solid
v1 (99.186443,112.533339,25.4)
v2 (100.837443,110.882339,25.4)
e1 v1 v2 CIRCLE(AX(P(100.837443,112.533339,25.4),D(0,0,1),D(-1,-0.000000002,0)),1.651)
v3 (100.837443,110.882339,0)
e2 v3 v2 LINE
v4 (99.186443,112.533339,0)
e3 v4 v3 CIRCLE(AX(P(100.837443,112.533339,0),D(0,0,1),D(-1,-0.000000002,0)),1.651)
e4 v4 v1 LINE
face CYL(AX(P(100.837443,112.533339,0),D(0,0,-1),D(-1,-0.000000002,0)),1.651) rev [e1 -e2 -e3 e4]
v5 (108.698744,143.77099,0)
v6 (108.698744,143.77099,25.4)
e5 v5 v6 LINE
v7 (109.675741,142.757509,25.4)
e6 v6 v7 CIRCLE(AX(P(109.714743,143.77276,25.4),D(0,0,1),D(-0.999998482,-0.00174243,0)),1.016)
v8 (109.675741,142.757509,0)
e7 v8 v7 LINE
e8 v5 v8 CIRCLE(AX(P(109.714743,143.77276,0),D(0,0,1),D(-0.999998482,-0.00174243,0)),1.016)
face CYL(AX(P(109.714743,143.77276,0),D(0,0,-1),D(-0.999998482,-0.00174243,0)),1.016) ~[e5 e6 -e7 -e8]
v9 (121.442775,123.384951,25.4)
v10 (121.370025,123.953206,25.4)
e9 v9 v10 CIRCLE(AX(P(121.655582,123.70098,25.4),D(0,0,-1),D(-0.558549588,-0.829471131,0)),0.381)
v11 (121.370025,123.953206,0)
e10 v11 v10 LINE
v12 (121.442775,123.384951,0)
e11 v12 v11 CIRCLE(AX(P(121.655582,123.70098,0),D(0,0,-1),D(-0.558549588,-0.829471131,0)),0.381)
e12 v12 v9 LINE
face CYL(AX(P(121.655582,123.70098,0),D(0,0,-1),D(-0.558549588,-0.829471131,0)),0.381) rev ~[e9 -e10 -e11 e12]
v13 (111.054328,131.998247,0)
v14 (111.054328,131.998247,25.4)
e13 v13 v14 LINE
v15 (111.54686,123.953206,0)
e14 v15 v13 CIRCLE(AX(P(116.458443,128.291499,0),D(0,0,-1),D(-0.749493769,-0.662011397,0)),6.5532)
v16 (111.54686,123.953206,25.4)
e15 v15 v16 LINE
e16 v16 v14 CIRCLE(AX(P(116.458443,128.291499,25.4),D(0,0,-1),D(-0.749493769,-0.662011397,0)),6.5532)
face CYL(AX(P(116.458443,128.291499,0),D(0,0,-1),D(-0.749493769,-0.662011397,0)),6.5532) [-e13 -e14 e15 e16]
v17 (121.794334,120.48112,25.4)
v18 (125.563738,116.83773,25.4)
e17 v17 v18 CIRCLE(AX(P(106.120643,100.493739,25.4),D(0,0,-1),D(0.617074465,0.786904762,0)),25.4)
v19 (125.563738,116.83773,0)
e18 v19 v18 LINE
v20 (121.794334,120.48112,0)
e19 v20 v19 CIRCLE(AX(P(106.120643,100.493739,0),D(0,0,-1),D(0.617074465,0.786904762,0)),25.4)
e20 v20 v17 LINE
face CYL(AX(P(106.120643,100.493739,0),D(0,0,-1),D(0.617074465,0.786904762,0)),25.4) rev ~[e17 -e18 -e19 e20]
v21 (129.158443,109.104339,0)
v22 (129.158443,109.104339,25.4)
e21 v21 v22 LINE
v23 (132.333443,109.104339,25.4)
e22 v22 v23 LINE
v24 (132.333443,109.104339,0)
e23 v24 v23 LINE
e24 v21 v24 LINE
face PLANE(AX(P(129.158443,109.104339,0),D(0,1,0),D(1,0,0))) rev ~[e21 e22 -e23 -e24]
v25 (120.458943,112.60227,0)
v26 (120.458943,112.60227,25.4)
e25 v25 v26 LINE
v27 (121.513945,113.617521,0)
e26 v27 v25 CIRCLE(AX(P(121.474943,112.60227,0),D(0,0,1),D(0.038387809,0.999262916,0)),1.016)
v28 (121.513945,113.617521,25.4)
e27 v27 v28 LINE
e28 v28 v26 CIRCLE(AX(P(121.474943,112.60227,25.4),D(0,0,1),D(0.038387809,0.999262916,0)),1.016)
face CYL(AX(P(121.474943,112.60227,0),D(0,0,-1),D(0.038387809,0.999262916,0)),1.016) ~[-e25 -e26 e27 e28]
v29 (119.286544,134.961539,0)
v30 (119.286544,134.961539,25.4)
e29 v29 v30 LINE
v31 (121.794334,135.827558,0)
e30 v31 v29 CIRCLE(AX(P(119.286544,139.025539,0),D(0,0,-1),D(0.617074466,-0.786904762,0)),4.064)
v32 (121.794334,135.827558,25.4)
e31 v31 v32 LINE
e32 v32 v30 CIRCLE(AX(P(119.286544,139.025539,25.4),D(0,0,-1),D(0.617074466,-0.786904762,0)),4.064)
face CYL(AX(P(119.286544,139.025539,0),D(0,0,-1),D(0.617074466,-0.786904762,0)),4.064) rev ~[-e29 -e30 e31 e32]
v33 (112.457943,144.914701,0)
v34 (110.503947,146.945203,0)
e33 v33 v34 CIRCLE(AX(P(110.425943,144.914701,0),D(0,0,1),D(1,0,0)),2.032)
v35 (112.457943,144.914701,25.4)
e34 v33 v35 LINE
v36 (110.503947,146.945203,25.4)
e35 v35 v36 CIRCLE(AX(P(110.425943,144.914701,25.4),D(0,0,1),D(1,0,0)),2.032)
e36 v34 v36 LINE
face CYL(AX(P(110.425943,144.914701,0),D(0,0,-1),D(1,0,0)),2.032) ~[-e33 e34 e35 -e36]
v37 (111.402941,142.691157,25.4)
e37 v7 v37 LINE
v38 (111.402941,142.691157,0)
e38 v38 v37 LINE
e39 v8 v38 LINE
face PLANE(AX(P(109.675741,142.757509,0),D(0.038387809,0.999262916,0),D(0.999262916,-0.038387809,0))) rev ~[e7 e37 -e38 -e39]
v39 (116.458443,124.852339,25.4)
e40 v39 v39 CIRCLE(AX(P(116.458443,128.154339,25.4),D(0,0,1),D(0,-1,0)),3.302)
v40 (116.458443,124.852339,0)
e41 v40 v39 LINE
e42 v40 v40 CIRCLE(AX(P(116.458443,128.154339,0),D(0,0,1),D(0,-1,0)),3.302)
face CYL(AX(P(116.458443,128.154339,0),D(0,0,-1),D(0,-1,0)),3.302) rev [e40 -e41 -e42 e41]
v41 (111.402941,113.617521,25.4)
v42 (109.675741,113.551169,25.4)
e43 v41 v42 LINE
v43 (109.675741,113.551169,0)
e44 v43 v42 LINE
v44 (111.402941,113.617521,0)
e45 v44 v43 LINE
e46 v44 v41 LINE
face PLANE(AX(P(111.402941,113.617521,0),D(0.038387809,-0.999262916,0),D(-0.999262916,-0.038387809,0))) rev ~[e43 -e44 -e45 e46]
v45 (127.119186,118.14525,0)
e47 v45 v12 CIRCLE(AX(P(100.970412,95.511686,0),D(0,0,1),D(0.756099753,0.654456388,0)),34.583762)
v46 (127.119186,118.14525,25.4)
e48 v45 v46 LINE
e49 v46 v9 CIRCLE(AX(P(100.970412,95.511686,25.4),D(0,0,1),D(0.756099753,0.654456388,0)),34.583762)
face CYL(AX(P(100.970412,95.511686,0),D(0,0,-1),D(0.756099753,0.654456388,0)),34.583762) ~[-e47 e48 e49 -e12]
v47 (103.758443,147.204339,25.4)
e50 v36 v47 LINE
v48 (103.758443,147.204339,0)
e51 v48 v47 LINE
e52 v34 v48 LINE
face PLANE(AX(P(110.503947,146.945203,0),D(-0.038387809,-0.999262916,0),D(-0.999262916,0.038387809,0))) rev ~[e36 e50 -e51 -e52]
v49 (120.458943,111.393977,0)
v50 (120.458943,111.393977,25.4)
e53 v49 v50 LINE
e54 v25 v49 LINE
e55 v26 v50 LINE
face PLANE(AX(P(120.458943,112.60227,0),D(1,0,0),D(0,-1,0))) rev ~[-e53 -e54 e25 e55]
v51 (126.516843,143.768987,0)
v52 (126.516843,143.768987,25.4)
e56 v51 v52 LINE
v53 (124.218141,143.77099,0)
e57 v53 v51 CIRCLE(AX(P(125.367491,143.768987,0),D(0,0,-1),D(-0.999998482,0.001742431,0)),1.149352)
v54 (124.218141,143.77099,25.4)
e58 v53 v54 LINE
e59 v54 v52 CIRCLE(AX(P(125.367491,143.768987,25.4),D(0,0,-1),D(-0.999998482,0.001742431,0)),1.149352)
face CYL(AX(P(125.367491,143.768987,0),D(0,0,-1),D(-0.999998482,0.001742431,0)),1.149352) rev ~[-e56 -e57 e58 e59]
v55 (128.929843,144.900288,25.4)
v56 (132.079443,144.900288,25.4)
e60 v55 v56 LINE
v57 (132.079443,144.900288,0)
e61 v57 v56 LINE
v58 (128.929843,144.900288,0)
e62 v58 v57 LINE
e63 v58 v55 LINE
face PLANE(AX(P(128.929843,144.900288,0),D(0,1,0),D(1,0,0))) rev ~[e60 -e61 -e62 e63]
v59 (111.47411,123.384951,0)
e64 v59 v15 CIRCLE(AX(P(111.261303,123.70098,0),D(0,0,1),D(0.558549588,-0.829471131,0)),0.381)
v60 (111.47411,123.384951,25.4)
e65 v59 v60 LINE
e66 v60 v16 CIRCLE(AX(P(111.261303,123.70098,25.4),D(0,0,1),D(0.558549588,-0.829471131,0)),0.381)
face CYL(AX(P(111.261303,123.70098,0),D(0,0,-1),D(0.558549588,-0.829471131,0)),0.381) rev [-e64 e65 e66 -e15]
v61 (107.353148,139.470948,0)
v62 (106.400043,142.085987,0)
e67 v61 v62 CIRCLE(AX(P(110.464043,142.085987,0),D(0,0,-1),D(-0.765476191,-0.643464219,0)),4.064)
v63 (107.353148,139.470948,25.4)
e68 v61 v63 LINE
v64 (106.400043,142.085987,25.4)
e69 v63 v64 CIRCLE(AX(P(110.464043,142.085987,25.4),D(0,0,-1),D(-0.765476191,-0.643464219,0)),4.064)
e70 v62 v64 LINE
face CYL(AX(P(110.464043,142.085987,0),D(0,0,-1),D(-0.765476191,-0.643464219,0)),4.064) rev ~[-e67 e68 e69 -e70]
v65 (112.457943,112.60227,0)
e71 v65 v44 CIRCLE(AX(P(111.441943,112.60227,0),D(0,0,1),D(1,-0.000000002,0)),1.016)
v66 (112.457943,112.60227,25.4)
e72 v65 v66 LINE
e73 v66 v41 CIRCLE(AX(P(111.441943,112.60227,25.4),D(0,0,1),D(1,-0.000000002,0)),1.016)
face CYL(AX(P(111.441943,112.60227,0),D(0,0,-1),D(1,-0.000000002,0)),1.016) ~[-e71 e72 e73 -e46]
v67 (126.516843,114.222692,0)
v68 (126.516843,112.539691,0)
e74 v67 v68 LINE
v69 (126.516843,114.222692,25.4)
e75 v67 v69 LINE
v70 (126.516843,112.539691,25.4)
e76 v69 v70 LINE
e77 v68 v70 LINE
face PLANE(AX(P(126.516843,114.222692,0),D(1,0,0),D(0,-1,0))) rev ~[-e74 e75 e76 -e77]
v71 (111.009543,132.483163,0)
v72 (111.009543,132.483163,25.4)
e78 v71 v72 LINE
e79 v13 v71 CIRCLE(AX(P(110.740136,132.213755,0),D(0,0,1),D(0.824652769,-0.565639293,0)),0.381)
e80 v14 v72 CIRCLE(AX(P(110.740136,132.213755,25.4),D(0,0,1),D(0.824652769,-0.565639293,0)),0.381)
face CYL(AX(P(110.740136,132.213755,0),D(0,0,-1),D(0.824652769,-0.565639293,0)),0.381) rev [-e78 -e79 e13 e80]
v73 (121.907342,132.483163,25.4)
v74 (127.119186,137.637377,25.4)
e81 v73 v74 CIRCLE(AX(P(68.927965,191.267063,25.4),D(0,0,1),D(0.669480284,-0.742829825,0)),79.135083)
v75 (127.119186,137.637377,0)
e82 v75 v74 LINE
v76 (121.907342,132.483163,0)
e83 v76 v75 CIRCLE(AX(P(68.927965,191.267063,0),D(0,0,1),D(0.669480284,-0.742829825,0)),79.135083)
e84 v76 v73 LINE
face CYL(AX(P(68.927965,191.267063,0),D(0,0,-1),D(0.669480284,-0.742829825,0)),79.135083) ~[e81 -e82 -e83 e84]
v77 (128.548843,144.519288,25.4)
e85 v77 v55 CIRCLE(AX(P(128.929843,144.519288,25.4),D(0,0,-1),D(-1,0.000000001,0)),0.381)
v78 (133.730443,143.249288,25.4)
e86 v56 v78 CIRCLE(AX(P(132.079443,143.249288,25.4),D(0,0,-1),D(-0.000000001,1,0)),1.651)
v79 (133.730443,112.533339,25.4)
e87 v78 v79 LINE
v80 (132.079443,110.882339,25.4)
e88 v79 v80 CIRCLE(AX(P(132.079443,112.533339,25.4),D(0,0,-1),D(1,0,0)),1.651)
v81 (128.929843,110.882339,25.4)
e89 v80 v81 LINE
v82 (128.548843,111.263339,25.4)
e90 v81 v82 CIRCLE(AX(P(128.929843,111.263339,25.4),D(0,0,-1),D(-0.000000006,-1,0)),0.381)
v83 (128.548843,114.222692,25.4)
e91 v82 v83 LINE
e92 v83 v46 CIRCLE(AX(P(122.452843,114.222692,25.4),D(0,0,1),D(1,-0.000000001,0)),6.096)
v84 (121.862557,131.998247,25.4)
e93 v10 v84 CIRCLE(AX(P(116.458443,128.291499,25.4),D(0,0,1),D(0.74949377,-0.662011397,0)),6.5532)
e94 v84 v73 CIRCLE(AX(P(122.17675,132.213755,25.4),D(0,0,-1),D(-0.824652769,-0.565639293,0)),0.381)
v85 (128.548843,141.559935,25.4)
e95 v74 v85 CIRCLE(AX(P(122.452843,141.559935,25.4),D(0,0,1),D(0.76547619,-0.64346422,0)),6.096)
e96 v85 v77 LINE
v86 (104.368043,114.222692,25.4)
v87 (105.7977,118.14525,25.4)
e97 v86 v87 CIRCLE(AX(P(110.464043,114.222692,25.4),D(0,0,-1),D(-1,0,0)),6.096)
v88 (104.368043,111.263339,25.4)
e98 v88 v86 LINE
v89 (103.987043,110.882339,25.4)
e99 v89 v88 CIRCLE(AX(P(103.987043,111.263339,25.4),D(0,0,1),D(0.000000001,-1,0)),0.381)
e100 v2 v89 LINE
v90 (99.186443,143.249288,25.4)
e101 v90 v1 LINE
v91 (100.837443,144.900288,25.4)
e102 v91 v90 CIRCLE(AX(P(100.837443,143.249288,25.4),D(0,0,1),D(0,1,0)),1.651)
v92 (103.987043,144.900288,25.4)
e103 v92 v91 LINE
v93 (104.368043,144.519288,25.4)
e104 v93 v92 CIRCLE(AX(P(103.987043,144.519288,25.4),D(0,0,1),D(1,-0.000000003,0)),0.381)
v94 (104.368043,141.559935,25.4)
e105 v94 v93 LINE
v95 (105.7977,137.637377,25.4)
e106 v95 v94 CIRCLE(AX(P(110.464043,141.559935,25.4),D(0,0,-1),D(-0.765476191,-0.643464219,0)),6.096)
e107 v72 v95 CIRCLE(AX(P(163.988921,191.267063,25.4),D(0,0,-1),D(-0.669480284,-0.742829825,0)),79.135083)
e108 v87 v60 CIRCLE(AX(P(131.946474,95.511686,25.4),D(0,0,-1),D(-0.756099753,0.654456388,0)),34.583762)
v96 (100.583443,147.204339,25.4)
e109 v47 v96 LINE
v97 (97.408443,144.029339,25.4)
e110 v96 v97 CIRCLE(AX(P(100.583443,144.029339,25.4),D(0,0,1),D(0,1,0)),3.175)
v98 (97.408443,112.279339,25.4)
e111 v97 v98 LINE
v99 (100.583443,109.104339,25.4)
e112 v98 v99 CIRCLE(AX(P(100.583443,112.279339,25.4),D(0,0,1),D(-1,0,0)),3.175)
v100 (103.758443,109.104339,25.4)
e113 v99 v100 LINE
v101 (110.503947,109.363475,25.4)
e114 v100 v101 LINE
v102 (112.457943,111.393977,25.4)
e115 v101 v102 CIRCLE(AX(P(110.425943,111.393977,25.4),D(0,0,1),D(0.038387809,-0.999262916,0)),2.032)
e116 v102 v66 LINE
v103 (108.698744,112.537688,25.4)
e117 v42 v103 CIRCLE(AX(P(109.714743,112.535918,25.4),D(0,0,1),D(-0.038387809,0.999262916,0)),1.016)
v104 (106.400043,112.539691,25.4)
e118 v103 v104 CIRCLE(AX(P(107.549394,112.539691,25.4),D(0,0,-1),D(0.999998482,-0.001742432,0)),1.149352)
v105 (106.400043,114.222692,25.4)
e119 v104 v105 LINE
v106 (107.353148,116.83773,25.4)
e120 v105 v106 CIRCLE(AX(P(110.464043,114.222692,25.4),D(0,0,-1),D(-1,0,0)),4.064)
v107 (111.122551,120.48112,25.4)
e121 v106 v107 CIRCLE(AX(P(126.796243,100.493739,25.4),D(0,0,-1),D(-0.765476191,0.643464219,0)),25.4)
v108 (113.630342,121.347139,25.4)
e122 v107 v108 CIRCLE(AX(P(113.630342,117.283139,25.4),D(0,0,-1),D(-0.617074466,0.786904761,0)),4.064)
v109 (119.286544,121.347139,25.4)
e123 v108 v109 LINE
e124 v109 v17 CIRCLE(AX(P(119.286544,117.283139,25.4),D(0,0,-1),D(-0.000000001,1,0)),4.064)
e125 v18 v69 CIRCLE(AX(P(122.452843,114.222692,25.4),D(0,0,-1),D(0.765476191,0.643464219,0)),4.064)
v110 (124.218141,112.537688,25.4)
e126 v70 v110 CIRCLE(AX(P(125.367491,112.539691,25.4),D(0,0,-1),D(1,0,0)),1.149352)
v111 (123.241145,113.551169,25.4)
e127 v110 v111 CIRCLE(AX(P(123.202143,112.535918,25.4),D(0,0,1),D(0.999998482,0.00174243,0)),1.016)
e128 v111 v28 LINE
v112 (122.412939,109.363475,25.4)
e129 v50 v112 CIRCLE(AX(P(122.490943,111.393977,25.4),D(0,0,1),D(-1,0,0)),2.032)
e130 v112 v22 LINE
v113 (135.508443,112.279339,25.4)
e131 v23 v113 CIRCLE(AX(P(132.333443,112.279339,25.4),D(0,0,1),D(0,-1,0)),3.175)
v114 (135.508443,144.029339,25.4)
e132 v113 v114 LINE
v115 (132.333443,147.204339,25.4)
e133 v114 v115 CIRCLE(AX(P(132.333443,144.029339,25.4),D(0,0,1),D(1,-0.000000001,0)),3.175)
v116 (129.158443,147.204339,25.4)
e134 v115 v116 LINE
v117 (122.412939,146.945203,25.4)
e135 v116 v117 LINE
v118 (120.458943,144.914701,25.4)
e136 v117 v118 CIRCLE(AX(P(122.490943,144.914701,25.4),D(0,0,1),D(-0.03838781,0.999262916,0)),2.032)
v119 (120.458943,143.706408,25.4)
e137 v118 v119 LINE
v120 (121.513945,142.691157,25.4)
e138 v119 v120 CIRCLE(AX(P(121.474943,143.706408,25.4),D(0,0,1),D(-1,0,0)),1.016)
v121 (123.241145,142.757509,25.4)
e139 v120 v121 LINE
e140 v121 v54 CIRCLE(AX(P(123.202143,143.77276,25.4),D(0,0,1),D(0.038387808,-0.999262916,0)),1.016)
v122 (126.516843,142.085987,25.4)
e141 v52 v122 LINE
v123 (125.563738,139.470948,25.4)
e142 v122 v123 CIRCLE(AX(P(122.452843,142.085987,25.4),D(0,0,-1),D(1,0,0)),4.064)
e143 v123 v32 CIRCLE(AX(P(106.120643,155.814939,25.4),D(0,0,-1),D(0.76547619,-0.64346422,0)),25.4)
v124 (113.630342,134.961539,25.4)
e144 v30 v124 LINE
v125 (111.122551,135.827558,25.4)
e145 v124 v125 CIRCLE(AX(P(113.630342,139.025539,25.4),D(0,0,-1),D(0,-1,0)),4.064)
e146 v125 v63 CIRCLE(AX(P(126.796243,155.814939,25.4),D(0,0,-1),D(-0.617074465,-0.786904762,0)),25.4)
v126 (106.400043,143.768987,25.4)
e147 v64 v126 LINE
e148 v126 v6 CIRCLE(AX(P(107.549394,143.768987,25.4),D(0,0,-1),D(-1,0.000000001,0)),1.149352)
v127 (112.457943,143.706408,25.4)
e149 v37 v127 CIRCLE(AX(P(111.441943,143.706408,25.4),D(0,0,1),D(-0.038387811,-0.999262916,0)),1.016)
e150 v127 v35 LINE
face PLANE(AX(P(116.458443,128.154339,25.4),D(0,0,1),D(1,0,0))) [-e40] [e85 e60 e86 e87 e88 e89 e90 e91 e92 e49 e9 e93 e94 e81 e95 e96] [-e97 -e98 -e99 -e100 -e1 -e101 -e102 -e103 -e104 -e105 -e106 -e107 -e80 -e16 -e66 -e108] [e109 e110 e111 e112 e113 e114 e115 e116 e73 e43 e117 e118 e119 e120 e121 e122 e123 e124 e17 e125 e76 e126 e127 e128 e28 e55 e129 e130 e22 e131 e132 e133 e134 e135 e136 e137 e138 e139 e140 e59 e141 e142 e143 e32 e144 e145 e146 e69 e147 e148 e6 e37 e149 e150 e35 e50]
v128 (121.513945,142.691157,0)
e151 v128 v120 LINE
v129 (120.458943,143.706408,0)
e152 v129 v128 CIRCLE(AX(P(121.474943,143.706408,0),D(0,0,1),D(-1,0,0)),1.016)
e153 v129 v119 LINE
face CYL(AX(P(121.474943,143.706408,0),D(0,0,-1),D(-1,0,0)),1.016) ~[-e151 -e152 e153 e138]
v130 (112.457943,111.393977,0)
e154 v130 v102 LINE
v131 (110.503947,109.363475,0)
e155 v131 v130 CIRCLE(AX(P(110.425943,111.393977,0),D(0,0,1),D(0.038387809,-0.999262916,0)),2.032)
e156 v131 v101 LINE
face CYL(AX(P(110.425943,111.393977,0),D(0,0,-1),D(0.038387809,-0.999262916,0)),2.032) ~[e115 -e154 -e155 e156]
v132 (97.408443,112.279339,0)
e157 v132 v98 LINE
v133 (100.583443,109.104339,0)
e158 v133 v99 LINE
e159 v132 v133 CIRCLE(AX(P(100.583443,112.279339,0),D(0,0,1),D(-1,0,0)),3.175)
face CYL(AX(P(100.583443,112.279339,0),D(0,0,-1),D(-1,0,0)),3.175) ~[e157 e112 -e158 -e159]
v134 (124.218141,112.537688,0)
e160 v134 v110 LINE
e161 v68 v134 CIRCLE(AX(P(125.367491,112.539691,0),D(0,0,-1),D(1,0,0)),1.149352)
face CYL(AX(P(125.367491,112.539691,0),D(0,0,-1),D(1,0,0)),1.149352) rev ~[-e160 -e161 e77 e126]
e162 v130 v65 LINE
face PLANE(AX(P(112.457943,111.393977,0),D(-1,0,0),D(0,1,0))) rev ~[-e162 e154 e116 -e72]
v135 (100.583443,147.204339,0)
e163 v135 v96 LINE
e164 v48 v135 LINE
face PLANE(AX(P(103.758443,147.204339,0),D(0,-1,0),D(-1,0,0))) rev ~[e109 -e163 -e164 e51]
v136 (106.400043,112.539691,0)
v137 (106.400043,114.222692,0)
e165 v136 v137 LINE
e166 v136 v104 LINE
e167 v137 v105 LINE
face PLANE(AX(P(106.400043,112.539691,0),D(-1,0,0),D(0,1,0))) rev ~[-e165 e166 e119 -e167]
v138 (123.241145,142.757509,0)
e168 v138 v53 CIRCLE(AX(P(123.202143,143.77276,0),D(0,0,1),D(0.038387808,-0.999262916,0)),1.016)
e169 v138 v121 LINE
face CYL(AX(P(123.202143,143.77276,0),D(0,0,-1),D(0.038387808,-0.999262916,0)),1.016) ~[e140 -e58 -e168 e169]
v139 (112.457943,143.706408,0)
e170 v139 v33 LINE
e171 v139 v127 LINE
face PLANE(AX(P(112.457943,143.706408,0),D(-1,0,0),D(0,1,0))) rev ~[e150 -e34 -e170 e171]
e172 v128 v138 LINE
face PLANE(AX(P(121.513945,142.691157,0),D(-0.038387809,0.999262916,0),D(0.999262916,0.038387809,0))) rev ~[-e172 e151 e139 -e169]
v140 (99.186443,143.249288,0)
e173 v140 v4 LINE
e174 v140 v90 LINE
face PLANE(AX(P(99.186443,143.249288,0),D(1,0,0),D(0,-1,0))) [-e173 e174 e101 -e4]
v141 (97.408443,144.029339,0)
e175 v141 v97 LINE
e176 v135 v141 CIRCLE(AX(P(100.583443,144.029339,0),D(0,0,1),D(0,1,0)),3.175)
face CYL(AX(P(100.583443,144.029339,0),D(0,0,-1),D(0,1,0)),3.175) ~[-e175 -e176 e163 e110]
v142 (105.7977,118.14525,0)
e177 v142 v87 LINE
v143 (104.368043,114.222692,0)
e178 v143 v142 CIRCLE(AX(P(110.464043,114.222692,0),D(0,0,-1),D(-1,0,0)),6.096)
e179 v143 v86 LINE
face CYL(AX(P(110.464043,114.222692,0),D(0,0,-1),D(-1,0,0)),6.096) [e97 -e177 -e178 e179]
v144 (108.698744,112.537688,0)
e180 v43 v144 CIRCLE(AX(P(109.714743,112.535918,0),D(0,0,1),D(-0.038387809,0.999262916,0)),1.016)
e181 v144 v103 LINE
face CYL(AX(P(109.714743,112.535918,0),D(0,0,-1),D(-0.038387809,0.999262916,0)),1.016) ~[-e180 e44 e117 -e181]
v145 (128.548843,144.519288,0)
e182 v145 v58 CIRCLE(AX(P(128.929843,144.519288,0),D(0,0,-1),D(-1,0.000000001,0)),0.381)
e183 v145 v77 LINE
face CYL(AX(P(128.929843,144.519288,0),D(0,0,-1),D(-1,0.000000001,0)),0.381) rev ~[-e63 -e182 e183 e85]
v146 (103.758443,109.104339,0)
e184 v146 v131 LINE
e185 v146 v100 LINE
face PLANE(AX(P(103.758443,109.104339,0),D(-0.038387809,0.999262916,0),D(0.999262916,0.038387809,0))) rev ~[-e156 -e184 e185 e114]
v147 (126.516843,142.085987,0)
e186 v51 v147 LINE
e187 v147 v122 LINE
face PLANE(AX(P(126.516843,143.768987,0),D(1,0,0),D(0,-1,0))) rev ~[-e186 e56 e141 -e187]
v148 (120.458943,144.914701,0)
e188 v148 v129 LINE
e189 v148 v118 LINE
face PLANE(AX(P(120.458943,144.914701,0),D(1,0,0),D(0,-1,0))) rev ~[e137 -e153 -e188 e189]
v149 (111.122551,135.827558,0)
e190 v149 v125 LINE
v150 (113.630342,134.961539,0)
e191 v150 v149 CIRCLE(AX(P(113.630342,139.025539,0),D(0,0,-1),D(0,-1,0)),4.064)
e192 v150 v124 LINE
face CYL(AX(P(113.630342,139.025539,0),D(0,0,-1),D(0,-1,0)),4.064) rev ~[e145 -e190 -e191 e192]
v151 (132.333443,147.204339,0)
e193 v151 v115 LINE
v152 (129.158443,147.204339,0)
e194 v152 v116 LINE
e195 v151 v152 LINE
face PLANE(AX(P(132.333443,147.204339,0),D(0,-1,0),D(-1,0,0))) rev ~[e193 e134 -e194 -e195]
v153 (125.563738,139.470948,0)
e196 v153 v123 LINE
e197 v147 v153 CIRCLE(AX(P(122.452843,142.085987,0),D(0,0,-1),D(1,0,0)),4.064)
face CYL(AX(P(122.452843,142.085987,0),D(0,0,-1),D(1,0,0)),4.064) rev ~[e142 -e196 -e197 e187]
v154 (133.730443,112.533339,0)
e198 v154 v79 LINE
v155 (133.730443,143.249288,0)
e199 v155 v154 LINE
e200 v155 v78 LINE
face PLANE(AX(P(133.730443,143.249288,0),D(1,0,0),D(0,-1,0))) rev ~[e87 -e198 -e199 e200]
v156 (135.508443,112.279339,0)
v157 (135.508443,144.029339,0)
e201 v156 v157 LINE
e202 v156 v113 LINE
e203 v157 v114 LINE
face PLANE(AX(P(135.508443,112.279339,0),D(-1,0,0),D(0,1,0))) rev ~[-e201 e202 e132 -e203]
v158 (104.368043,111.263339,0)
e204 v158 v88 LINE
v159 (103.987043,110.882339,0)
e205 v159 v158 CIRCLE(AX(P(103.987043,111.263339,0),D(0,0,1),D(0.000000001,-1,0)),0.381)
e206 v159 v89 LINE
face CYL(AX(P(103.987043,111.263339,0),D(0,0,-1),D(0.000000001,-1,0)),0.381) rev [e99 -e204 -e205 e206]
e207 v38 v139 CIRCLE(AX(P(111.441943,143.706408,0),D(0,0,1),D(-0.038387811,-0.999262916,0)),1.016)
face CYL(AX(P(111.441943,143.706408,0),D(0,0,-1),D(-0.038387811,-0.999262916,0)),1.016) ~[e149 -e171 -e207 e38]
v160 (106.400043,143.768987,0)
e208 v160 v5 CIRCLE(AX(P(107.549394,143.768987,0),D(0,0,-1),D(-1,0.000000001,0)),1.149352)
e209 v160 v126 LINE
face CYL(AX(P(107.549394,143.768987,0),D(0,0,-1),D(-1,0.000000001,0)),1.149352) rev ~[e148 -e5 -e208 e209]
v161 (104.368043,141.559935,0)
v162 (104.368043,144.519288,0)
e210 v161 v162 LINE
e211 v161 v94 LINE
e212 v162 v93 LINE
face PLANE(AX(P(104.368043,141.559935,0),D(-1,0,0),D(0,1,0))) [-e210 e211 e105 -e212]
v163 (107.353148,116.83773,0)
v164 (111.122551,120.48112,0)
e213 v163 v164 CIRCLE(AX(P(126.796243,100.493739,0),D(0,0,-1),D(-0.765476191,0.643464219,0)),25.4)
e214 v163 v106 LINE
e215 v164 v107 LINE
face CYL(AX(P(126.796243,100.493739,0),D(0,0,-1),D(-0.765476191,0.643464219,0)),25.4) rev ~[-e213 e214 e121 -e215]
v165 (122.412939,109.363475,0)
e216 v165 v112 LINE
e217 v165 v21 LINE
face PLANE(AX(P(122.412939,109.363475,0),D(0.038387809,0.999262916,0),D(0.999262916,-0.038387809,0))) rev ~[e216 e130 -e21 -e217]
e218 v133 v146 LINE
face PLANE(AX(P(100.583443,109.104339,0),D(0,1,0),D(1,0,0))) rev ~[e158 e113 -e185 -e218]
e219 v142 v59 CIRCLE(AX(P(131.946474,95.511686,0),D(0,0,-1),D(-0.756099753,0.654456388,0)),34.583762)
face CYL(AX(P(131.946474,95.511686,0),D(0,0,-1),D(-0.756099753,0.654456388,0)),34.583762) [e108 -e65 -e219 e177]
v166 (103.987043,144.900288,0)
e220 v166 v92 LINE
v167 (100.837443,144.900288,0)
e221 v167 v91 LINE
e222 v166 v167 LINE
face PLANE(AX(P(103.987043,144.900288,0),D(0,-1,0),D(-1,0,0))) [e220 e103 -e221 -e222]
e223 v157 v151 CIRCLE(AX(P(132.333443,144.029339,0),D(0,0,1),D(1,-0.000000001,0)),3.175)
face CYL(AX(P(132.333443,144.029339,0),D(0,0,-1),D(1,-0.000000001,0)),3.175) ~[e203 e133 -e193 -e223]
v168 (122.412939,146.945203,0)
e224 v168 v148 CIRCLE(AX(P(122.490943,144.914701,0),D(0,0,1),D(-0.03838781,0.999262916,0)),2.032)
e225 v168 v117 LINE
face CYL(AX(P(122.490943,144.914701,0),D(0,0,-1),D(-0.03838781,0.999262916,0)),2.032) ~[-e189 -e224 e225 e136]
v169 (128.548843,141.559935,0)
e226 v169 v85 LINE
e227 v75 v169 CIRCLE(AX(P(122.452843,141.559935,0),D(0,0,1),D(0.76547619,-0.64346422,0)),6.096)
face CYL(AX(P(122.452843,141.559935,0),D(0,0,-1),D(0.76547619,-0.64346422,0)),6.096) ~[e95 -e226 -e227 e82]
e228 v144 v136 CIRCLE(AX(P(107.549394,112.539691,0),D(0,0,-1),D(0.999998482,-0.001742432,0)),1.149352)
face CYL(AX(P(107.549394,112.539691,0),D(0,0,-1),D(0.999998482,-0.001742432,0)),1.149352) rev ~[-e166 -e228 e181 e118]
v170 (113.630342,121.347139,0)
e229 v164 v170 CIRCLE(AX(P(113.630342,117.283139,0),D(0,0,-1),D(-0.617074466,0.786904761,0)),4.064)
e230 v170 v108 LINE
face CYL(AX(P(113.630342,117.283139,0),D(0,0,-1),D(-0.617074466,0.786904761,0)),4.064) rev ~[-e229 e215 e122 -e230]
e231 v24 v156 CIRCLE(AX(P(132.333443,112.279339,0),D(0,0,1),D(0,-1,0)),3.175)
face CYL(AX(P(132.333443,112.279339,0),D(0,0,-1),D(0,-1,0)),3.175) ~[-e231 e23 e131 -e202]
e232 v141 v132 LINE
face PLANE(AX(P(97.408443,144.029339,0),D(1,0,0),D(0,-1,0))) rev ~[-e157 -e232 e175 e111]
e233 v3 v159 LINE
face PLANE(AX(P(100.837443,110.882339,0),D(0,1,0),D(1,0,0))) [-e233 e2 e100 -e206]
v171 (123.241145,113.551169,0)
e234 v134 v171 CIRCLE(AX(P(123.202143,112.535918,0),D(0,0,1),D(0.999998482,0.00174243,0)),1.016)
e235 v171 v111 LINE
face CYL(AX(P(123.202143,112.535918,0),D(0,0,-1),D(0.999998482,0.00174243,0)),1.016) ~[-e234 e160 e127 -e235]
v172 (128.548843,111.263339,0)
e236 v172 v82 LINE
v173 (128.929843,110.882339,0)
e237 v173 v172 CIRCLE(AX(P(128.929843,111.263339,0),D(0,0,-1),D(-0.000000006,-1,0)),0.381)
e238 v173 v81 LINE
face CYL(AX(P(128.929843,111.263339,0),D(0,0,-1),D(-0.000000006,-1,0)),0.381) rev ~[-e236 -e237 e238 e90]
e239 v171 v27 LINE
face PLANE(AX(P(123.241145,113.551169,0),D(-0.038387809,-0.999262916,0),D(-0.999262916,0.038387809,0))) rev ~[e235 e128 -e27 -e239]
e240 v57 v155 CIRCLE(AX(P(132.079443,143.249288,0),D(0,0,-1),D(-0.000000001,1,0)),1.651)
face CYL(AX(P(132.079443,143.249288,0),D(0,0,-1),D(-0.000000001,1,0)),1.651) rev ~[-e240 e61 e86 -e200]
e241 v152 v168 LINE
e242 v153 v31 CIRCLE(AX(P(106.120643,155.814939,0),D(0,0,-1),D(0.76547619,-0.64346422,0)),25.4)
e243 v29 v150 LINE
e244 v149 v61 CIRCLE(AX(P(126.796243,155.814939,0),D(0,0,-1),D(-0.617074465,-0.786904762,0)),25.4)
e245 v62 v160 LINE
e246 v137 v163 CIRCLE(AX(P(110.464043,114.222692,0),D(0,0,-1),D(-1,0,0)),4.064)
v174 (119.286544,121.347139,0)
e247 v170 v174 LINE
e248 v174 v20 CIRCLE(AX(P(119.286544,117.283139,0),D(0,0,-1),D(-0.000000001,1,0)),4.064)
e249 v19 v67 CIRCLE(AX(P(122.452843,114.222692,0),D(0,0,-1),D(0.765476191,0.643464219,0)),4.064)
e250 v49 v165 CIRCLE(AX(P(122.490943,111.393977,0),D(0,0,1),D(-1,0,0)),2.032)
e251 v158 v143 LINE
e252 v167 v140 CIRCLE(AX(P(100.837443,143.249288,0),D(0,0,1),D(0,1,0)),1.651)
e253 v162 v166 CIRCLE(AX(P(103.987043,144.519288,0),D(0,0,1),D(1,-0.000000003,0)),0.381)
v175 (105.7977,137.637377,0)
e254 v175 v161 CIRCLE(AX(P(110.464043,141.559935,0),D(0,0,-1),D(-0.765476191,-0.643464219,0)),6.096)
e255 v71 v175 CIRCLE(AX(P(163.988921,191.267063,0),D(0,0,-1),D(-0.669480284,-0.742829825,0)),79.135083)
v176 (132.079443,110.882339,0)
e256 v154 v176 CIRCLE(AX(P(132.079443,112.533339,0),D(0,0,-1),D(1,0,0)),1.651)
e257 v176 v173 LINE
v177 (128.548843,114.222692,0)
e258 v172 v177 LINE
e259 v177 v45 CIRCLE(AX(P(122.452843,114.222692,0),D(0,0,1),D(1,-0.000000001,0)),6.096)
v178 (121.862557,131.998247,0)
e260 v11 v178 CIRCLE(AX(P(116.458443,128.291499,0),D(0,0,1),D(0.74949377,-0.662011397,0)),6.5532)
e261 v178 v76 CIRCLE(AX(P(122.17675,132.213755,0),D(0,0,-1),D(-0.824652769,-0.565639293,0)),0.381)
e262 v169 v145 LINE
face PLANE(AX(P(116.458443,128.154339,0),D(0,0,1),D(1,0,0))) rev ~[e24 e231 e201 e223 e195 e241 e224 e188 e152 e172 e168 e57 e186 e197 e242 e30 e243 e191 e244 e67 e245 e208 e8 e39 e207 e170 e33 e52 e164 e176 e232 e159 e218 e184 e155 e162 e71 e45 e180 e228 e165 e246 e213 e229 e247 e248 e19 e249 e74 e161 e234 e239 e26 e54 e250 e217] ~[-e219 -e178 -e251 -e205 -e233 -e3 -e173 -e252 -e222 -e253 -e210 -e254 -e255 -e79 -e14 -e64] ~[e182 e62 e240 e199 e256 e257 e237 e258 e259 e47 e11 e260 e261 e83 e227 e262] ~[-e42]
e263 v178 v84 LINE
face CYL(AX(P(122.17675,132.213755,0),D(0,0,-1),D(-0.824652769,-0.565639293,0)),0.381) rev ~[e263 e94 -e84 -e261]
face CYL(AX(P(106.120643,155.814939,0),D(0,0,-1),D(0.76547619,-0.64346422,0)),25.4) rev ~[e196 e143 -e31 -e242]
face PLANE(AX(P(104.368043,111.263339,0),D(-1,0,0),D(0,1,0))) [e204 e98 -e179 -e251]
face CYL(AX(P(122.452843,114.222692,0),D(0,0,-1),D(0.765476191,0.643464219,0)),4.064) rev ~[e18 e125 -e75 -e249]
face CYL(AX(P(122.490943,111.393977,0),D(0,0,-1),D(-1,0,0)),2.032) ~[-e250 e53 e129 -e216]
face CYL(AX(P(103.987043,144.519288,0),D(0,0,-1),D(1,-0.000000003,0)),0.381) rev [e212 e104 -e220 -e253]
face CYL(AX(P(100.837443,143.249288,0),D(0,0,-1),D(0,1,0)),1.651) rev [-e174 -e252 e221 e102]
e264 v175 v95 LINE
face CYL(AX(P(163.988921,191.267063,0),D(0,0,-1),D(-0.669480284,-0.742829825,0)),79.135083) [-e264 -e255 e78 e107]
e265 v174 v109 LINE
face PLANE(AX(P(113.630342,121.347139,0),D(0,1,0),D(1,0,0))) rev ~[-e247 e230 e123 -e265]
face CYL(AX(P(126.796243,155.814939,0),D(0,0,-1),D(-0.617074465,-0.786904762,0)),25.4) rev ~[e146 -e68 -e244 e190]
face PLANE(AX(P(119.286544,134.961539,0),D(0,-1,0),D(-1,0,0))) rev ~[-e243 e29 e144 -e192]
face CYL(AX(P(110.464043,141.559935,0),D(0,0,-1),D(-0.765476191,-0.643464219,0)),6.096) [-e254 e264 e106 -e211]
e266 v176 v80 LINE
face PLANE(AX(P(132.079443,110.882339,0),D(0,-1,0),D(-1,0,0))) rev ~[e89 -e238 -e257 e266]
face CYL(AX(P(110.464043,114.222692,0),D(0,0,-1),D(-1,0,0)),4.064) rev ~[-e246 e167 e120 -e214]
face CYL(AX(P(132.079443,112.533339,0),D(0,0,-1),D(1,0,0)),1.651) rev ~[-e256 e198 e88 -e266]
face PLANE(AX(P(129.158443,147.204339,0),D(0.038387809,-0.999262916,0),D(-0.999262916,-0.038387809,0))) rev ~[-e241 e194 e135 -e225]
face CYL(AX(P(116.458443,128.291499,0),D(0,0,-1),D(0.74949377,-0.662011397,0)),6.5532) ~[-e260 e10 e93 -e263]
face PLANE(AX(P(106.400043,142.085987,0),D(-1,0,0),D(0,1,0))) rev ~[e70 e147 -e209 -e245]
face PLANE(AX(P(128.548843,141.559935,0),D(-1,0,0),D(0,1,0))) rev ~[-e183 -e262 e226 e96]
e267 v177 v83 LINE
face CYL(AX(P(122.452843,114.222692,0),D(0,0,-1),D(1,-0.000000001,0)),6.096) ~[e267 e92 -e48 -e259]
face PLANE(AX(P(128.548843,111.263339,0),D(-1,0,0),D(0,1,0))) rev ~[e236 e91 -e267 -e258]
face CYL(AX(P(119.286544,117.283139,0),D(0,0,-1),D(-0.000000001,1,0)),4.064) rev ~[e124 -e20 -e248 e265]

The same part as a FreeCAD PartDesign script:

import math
import FreeCAD as App
import Part
import Sketcher

V = App.Vector
Q = App.Units.Quantity

doc = App.newDocument("Part")
body = doc.addObject("PartDesign::Body", "Body")

sketch1 = body.newObject("Sketcher::SketchObject", "Sketch")
sketch1.AttachmentSupport = (doc.getObject("XY_Plane"), [""])
sketch1.MapMode = "FlatFace"
sketch1.addGeometry([
    Part.LineSegment(V(119.286544, 134.961539, 0), V(113.630342, 134.961539, 0)),
    Part.ArcOfCircle(Part.Circle(V(113.630342, 139.025539, 0), V(0, 0, 1), 4.064), math.radians(-128.10281), math.radians(-90)),
    Part.ArcOfCircle(Part.Circle(V(126.796243, 155.814939, 0), V(0, 0, 1), 25.4), math.radians(-139.949375), math.radians(-128.10281)),
    Part.ArcOfCircle(Part.Circle(V(110.464043, 142.085987, 0), V(0, 0, 1), 4.064), math.radians(180), math.radians(220.050625)),
    Part.LineSegment(V(106.400043, 142.085987, 0), V(106.400043, 143.768987, 0)),
    Part.ArcOfCircle(Part.Circle(V(107.549394, 143.768987, 0), V(0, 0, 1), 1.149352), math.radians(0.099834), math.radians(180)),
    Part.ArcOfCircle(Part.Circle(V(109.714743, 143.77276, 0), V(0, 0, 1), 1.016), math.radians(-179.900166), math.radians(-92.2)),
    Part.LineSegment(V(109.675741, 142.757509, 0), V(111.402941, 142.691157, 0)),
    Part.ArcOfCircle(Part.Circle(V(111.441943, 143.706408, 0), V(0, 0, 1), 1.016), math.radians(-92.2), math.radians(0)),
    Part.LineSegment(V(112.457943, 143.706408, 0), V(112.457943, 144.914701, 0)),
    Part.ArcOfCircle(Part.Circle(V(110.425943, 144.914701, 0), V(0, 0, 1), 2.032), math.radians(0), math.radians(87.8)),
    Part.LineSegment(V(110.503947, 146.945203, 0), V(103.758443, 147.204339, 0)),
    Part.LineSegment(V(103.758443, 147.204339, 0), V(100.583443, 147.204339, 0)),
    Part.ArcOfCircle(Part.Circle(V(100.583443, 144.029339, 0), V(0, 0, 1), 3.175), math.radians(90), math.radians(180)),
    Part.LineSegment(V(97.408443, 144.029339, 0), V(97.408443, 112.279339, 0)),
    Part.ArcOfCircle(Part.Circle(V(100.583443, 112.279339, 0), V(0, 0, 1), 3.175), math.radians(-180), math.radians(-90)),
    Part.LineSegment(V(100.583443, 109.104339, 0), V(103.758443, 109.104339, 0)),
    Part.LineSegment(V(103.758443, 109.104339, 0), V(110.503947, 109.363475, 0)),
    Part.ArcOfCircle(Part.Circle(V(110.425943, 111.393977, 0), V(0, 0, 1), 2.032), math.radians(-87.8), math.radians(0)),
    Part.LineSegment(V(112.457943, 111.393977, 0), V(112.457943, 112.60227, 0)),
    Part.ArcOfCircle(Part.Circle(V(111.441943, 112.60227, 0), V(0, 0, 1), 1.016), math.radians(0), math.radians(92.2)),
    Part.LineSegment(V(111.402941, 113.617521, 0), V(109.675741, 113.551169, 0)),
    Part.ArcOfCircle(Part.Circle(V(109.714743, 112.535918, 0), V(0, 0, 1), 1.016), math.radians(92.2), math.radians(179.900166)),
    Part.ArcOfCircle(Part.Circle(V(107.549394, 112.539691, 0), V(0, 0, 1), 1.149352), math.radians(-180), math.radians(-0.099834)),
    Part.LineSegment(V(106.400043, 112.539691, 0), V(106.400043, 114.222692, 0)),
    Part.ArcOfCircle(Part.Circle(V(110.464043, 114.222692, 0), V(0, 0, 1), 4.064), math.radians(139.949375), math.radians(180)),
    Part.ArcOfCircle(Part.Circle(V(126.796243, 100.493739, 0), V(0, 0, 1), 25.4), math.radians(128.10281), math.radians(139.949375)),
    Part.ArcOfCircle(Part.Circle(V(113.630342, 117.283139, 0), V(0, 0, 1), 4.064), math.radians(90), math.radians(128.10281)),
    Part.LineSegment(V(113.630342, 121.347139, 0), V(119.286544, 121.347139, 0)),
    Part.ArcOfCircle(Part.Circle(V(119.286544, 117.283139, 0), V(0, 0, 1), 4.064), math.radians(51.89719), math.radians(90)),
    Part.ArcOfCircle(Part.Circle(V(106.120643, 100.493739, 0), V(0, 0, 1), 25.4), math.radians(40.050625), math.radians(51.89719)),
    Part.ArcOfCircle(Part.Circle(V(122.452843, 114.222692, 0), V(0, 0, 1), 4.064), math.radians(0), math.radians(40.050625)),
    Part.LineSegment(V(126.516843, 114.222692, 0), V(126.516843, 112.539691, 0)),
    Part.ArcOfCircle(Part.Circle(V(125.367491, 112.539691, 0), V(0, 0, 1), 1.149352), math.radians(-179.900166), math.radians(0)),
    Part.ArcOfCircle(Part.Circle(V(123.202143, 112.535918, 0), V(0, 0, 1), 1.016), math.radians(0.099834), math.radians(87.8)),
    Part.LineSegment(V(123.241145, 113.551169, 0), V(121.513945, 113.617521, 0)),
    Part.ArcOfCircle(Part.Circle(V(121.474943, 112.60227, 0), V(0, 0, 1), 1.016), math.radians(87.8), math.radians(180)),
    Part.LineSegment(V(120.458943, 112.60227, 0), V(120.458943, 111.393977, 0)),
    Part.ArcOfCircle(Part.Circle(V(122.490943, 111.393977, 0), V(0, 0, 1), 2.032), math.radians(180), math.radians(267.8)),
    Part.LineSegment(V(122.412939, 109.363475, 0), V(129.158443, 109.104339, 0)),
    Part.LineSegment(V(129.158443, 109.104339, 0), V(132.333443, 109.104339, 0)),
    Part.ArcOfCircle(Part.Circle(V(132.333443, 112.279339, 0), V(0, 0, 1), 3.175), math.radians(-90), math.radians(0)),
    Part.LineSegment(V(135.508443, 112.279339, 0), V(135.508443, 144.029339, 0)),
    Part.ArcOfCircle(Part.Circle(V(132.333443, 144.029339, 0), V(0, 0, 1), 3.175), math.radians(0), math.radians(90)),
    Part.LineSegment(V(132.333443, 147.204339, 0), V(129.158443, 147.204339, 0)),
    Part.LineSegment(V(129.158443, 147.204339, 0), V(122.412939, 146.945203, 0)),
    Part.ArcOfCircle(Part.Circle(V(122.490943, 144.914701, 0), V(0, 0, 1), 2.032), math.radians(92.2), math.radians(180)),
    Part.LineSegment(V(120.458943, 144.914701, 0), V(120.458943, 143.706408, 0)),
    Part.ArcOfCircle(Part.Circle(V(121.474943, 143.706408, 0), V(0, 0, 1), 1.016), math.radians(180), math.radians(272.2)),
    Part.LineSegment(V(121.513945, 142.691157, 0), V(123.241145, 142.757509, 0)),
    Part.ArcOfCircle(Part.Circle(V(123.202143, 143.77276, 0), V(0, 0, 1), 1.016), math.radians(-87.8), math.radians(-0.099834)),
    Part.ArcOfCircle(Part.Circle(V(125.367491, 143.768987, 0), V(0, 0, 1), 1.149352), math.radians(0), math.radians(179.900166)),
    Part.LineSegment(V(126.516843, 143.768987, 0), V(126.516843, 142.085987, 0)),
    Part.ArcOfCircle(Part.Circle(V(122.452843, 142.085987, 0), V(0, 0, 1), 4.064), math.radians(-40.050625), math.radians(0)),
    Part.ArcOfCircle(Part.Circle(V(106.120643, 155.814939, 0), V(0, 0, 1), 25.4), math.radians(-51.89719), math.radians(-40.050625)),
    Part.ArcOfCircle(Part.Circle(V(119.286544, 139.025539, 0), V(0, 0, 1), 4.064), math.radians(-90), math.radians(-51.89719)),
    Part.LineSegment(V(104.368043, 144.519288, 0), V(104.368043, 141.559935, 0)),
    Part.ArcOfCircle(Part.Circle(V(110.464043, 141.559935, 0), V(0, 0, 1), 6.096), math.radians(-180), math.radians(-139.949375)),
    Part.ArcOfCircle(Part.Circle(V(163.988921, 191.267063, 0), V(0, 0, 1), 79.135083), math.radians(-137.335985), math.radians(-132.026966)),
    Part.ArcOfCircle(Part.Circle(V(110.740136, 132.213755, 0), V(0, 0, 1), 0.381), math.radians(-34.446697), math.radians(45)),
    Part.ArcOfCircle(Part.Circle(V(116.458443, 128.291499, 0), V(0, 0, 1), 6.5532), math.radians(145.553303), math.radians(221.453454)),
    Part.ArcOfCircle(Part.Circle(V(111.261303, 123.70098, 0), V(0, 0, 1), 0.381), math.radians(-56.044449), math.radians(41.453454)),
    Part.ArcOfCircle(Part.Circle(V(131.946474, 95.511686, 0), V(0, 0, 1), 34.583762), math.radians(126.296548), math.radians(139.121557)),
    Part.ArcOfCircle(Part.Circle(V(110.464043, 114.222692, 0), V(0, 0, 1), 6.096), math.radians(139.949375), math.radians(180)),
    Part.LineSegment(V(104.368043, 114.222692, 0), V(104.368043, 111.263339, 0)),
    Part.ArcOfCircle(Part.Circle(V(103.987043, 111.263339, 0), V(0, 0, 1), 0.381), math.radians(-90), math.radians(0)),
    Part.LineSegment(V(103.987043, 110.882339, 0), V(100.837443, 110.882339, 0)),
    Part.ArcOfCircle(Part.Circle(V(100.837443, 112.533339, 0), V(0, 0, 1), 1.651), math.radians(-180), math.radians(-90)),
    Part.LineSegment(V(99.186443, 112.533339, 0), V(99.186443, 143.249288, 0)),
    Part.ArcOfCircle(Part.Circle(V(100.837443, 143.249288, 0), V(0, 0, 1), 1.651), math.radians(90), math.radians(180)),
    Part.LineSegment(V(100.837443, 144.900288, 0), V(103.987043, 144.900288, 0)),
    Part.ArcOfCircle(Part.Circle(V(103.987043, 144.519288, 0), V(0, 0, 1), 0.381), math.radians(0), math.radians(90)),
    Part.Circle(V(116.458443, 128.154339, 0), V(0, 0, 1), 3.302),
    Part.ArcOfCircle(Part.Circle(V(122.452843, 141.559935, 0), V(0, 0, 1), 6.096), math.radians(-40.050625), math.radians(0)),
    Part.LineSegment(V(128.548843, 141.559935, 0), V(128.548843, 144.519288, 0)),
    Part.ArcOfCircle(Part.Circle(V(128.929843, 144.519288, 0), V(0, 0, 1), 0.381), math.radians(90), math.radians(180)),
    Part.LineSegment(V(128.929843, 144.900288, 0), V(132.079443, 144.900288, 0)),
    Part.ArcOfCircle(Part.Circle(V(132.079443, 143.249288, 0), V(0, 0, 1), 1.651), math.radians(0), math.radians(90)),
    Part.LineSegment(V(133.730443, 143.249288, 0), V(133.730443, 112.533339, 0)),
    Part.ArcOfCircle(Part.Circle(V(132.079443, 112.533339, 0), V(0, 0, 1), 1.651), math.radians(-90), math.radians(0)),
    Part.LineSegment(V(132.079443, 110.882339, 0), V(128.929843, 110.882339, 0)),
    Part.ArcOfCircle(Part.Circle(V(128.929843, 111.263339, 0), V(0, 0, 1), 0.381), math.radians(-180), math.radians(-90)),
    Part.LineSegment(V(128.548843, 111.263339, 0), V(128.548843, 114.222692, 0)),
    Part.ArcOfCircle(Part.Circle(V(122.452843, 114.222692, 0), V(0, 0, 1), 6.096), math.radians(0), math.radians(40.050625)),
    Part.ArcOfCircle(Part.Circle(V(100.970412, 95.511686, 0), V(0, 0, 1), 34.583762), math.radians(40.878443), math.radians(53.703452)),
    Part.ArcOfCircle(Part.Circle(V(121.655582, 123.70098, 0), V(0, 0, 1), 0.381), math.radians(138.546546), math.radians(236.044449)),
    Part.ArcOfCircle(Part.Circle(V(116.458443, 128.291499, 0), V(0, 0, 1), 6.5532), math.radians(-41.453454), math.radians(34.446697)),
    Part.ArcOfCircle(Part.Circle(V(122.17675, 132.213755, 0), V(0, 0, 1), 0.381), math.radians(135), math.radians(214.446697)),
    Part.ArcOfCircle(Part.Circle(V(68.927965, 191.267063, 0), V(0, 0, 1), 79.135083), math.radians(-47.973034), math.radians(-42.664015)),
], False)
sketch1.addConstraint([
    Sketcher.Constraint("Tangent", 0, 2, 1, 2),
    Sketcher.Constraint("Tangent", 1, 1, 2, 2),
    Sketcher.Constraint("Tangent", 2, 1, 3, 2),
    Sketcher.Constraint("Tangent", 3, 1, 4, 1),
    Sketcher.Constraint("Tangent", 4, 2, 5, 2),
    Sketcher.Constraint("Tangent", 5, 1, 6, 1),
    Sketcher.Constraint("Tangent", 6, 2, 7, 1),
    Sketcher.Constraint("Tangent", 7, 2, 8, 1),
    Sketcher.Constraint("Tangent", 8, 2, 9, 1),
    Sketcher.Constraint("Tangent", 9, 2, 10, 1),
    Sketcher.Constraint("Tangent", 10, 2, 11, 1),
    Sketcher.Constraint("Coincident", 11, 2, 12, 1),
    Sketcher.Constraint("Tangent", 12, 2, 13, 1),
    Sketcher.Constraint("Tangent", 13, 2, 14, 1),
    Sketcher.Constraint("Tangent", 14, 2, 15, 1),
    Sketcher.Constraint("Tangent", 15, 2, 16, 1),
    Sketcher.Constraint("Coincident", 16, 2, 17, 1),
    Sketcher.Constraint("Tangent", 17, 2, 18, 1),
    Sketcher.Constraint("Tangent", 18, 2, 19, 1),
    Sketcher.Constraint("Tangent", 19, 2, 20, 1),
    Sketcher.Constraint("Tangent", 20, 2, 21, 1),
    Sketcher.Constraint("Tangent", 21, 2, 22, 1),
    Sketcher.Constraint("Tangent", 22, 2, 23, 2),
    Sketcher.Constraint("Tangent", 23, 1, 24, 1),
    Sketcher.Constraint("Tangent", 24, 2, 25, 2),
    Sketcher.Constraint("Tangent", 25, 1, 26, 2),
    Sketcher.Constraint("Tangent", 26, 1, 27, 2),
    Sketcher.Constraint("Tangent", 27, 1, 28, 1),
    Sketcher.Constraint("Tangent", 28, 2, 29, 2),
    Sketcher.Constraint("Tangent", 29, 1, 30, 2),
    Sketcher.Constraint("Tangent", 30, 1, 31, 2),
    Sketcher.Constraint("Tangent", 31, 1, 32, 1),
    Sketcher.Constraint("Tangent", 32, 2, 33, 2),
    Sketcher.Constraint("Tangent", 33, 1, 34, 1),
    Sketcher.Constraint("Tangent", 34, 2, 35, 1),
    Sketcher.Constraint("Tangent", 35, 2, 36, 1),
    Sketcher.Constraint("Tangent", 36, 2, 37, 1),
    Sketcher.Constraint("Tangent", 37, 2, 38, 1),
    Sketcher.Constraint("Tangent", 38, 2, 39, 1),
    Sketcher.Constraint("Coincident", 39, 2, 40, 1),
    Sketcher.Constraint("Tangent", 40, 2, 41, 1),
    Sketcher.Constraint("Tangent", 41, 2, 42, 1),
    Sketcher.Constraint("Tangent", 42, 2, 43, 1),
    Sketcher.Constraint("Tangent", 43, 2, 44, 1),
    Sketcher.Constraint("Coincident", 44, 2, 45, 1),
    Sketcher.Constraint("Tangent", 45, 2, 46, 1),
    Sketcher.Constraint("Tangent", 46, 2, 47, 1),
    Sketcher.Constraint("Tangent", 47, 2, 48, 1),
    Sketcher.Constraint("Tangent", 48, 2, 49, 1),
    Sketcher.Constraint("Tangent", 49, 2, 50, 1),
    Sketcher.Constraint("Tangent", 50, 2, 51, 2),
    Sketcher.Constraint("Tangent", 51, 1, 52, 1),
    Sketcher.Constraint("Tangent", 52, 2, 53, 2),
    Sketcher.Constraint("Tangent", 53, 1, 54, 2),
    Sketcher.Constraint("Tangent", 54, 1, 55, 2),
    Sketcher.Constraint("Tangent", 55, 1, 0, 1),
    Sketcher.Constraint("Tangent", 56, 2, 57, 1),
    Sketcher.Constraint("Coincident", 57, 2, 58, 1),
    Sketcher.Constraint("Coincident", 58, 2, 59, 2),
    Sketcher.Constraint("Tangent", 59, 1, 60, 1),
    Sketcher.Constraint("Tangent", 60, 2, 61, 2),
    Sketcher.Constraint("Coincident", 61, 1, 62, 1),
    Sketcher.Constraint("Coincident", 62, 2, 63, 1),
    Sketcher.Constraint("Tangent", 63, 2, 64, 1),
    Sketcher.Constraint("Tangent", 64, 2, 65, 2),
    Sketcher.Constraint("Tangent", 65, 1, 66, 1),
    Sketcher.Constraint("Tangent", 66, 2, 67, 2),
    Sketcher.Constraint("Tangent", 67, 1, 68, 1),
    Sketcher.Constraint("Tangent", 68, 2, 69, 2),
    Sketcher.Constraint("Tangent", 69, 1, 70, 1),
    Sketcher.Constraint("Tangent", 70, 2, 71, 2),
    Sketcher.Constraint("Tangent", 71, 1, 56, 1),
    Sketcher.Constraint("Tangent", 73, 2, 74, 1),
    Sketcher.Constraint("Tangent", 74, 2, 75, 2),
    Sketcher.Constraint("Tangent", 75, 1, 76, 1),
    Sketcher.Constraint("Tangent", 76, 2, 77, 2),
    Sketcher.Constraint("Tangent", 77, 1, 78, 1),
    Sketcher.Constraint("Tangent", 78, 2, 79, 2),
    Sketcher.Constraint("Tangent", 79, 1, 80, 1),
    Sketcher.Constraint("Tangent", 80, 2, 81, 2),
    Sketcher.Constraint("Tangent", 81, 1, 82, 1),
    Sketcher.Constraint("Tangent", 82, 2, 83, 1),
    Sketcher.Constraint("Coincident", 83, 2, 84, 1),
    Sketcher.Constraint("Coincident", 84, 2, 85, 2),
    Sketcher.Constraint("Tangent", 85, 1, 86, 1),
    Sketcher.Constraint("Tangent", 86, 2, 87, 2),
    Sketcher.Constraint("Coincident", 87, 1, 88, 1),
    Sketcher.Constraint("Coincident", 88, 2, 73, 1),
    Sketcher.Constraint("Horizontal", 0),
    Sketcher.Constraint("Vertical", 4),
    Sketcher.Constraint("Vertical", 9),
    Sketcher.Constraint("Horizontal", 12),
    Sketcher.Constraint("Vertical", 14),
    Sketcher.Constraint("Horizontal", 16),
    Sketcher.Constraint("Vertical", 19),
    Sketcher.Constraint("Vertical", 24),
    Sketcher.Constraint("Horizontal", 28),
    Sketcher.Constraint("Vertical", 32),
    Sketcher.Constraint("Vertical", 37),
    Sketcher.Constraint("Horizontal", 40),
    Sketcher.Constraint("Vertical", 42),
    Sketcher.Constraint("Horizontal", 44),
    Sketcher.Constraint("Vertical", 47),
    Sketcher.Constraint("Vertical", 52),
    Sketcher.Constraint("Vertical", 56),
    Sketcher.Constraint("Vertical", 64),
    Sketcher.Constraint("Horizontal", 66),
    Sketcher.Constraint("Vertical", 68),
    Sketcher.Constraint("Horizontal", 70),
    Sketcher.Constraint("Vertical", 74),
    Sketcher.Constraint("Horizontal", 76),
    Sketcher.Constraint("Vertical", 78),
    Sketcher.Constraint("Horizontal", 80),
    Sketcher.Constraint("Vertical", 82),
    Sketcher.Constraint("Coincident", 63, 3, 25, 3),
    Sketcher.Constraint("Coincident", 83, 3, 31, 3),
    Sketcher.Constraint("Coincident", 86, 3, 60, 3),
    Sketcher.Constraint("Equal", 1, 3),
    Sketcher.Constraint("Equal", 6, 8),
    Sketcher.Constraint("Equal", 13, 15),
    Sketcher.Constraint("Equal", 10, 18),
    Sketcher.Constraint("Equal", 8, 20),
    Sketcher.Constraint("Equal", 20, 22),
    Sketcher.Constraint("Equal", 5, 23),
    Sketcher.Constraint("Equal", 3, 25),
    Sketcher.Constraint("Equal", 2, 26),
    Sketcher.Constraint("Equal", 25, 27),
    Sketcher.Constraint("Equal", 27, 29),
    Sketcher.Constraint("Equal", 26, 30),
    Sketcher.Constraint("Equal", 29, 31),
    Sketcher.Constraint("Equal", 23, 33),
    Sketcher.Constraint("Equal", 22, 34),
    Sketcher.Constraint("Equal", 34, 36),
    Sketcher.Constraint("Equal", 18, 38),
    Sketcher.Constraint("Equal", 15, 41),
    Sketcher.Constraint("Equal", 41, 43),
    Sketcher.Constraint("Equal", 38, 46),
    Sketcher.Constraint("Equal", 36, 48),
    Sketcher.Constraint("Equal", 48, 50),
    Sketcher.Constraint("Equal", 33, 51),
    Sketcher.Constraint("Equal", 31, 53),
    Sketcher.Constraint("Equal", 30, 54),
    Sketcher.Constraint("Equal", 53, 55),
    Sketcher.Constraint("Equal", 59, 61),
    Sketcher.Constraint("Equal", 57, 63),
    Sketcher.Constraint("Equal", 61, 65),
    Sketcher.Constraint("Equal", 67, 69),
    Sketcher.Constraint("Equal", 65, 71),
    Sketcher.Constraint("Equal", 63, 73),
    Sketcher.Constraint("Equal", 71, 75),
    Sketcher.Constraint("Equal", 69, 77),
    Sketcher.Constraint("Equal", 77, 79),
    Sketcher.Constraint("Equal", 75, 81),
    Sketcher.Constraint("Equal", 73, 83),
    Sketcher.Constraint("Equal", 62, 84),
    Sketcher.Constraint("Equal", 81, 85),
    Sketcher.Constraint("Equal", 60, 86),
    Sketcher.Constraint("Equal", 85, 87),
    Sketcher.Constraint("Equal", 58, 88),
    Sketcher.Constraint("Parallel", 7, 11),
    Sketcher.Constraint("Parallel", 17, 21),
    Sketcher.Constraint("Parallel", 11, 35),
    Sketcher.Constraint("Parallel", 35, 39),
    Sketcher.Constraint("Parallel", 21, 45),
    Sketcher.Constraint("Parallel", 45, 49),
    Sketcher.Constraint("Horizontal", 26, 3, 30, 3),
    Sketcher.Constraint("Horizontal", 25, 3, 31, 3),
    Sketcher.Constraint("Horizontal", 23, 3, 33, 3),
    Sketcher.Constraint("Horizontal", 22, 3, 34, 3),
    Sketcher.Constraint("Horizontal", 20, 3, 36, 3),
    Sketcher.Constraint("Horizontal", 18, 3, 38, 3),
    Sketcher.Constraint("Horizontal", 15, 3, 41, 3),
    Sketcher.Constraint("Horizontal", 13, 3, 43, 3),
    Sketcher.Constraint("Horizontal", 10, 3, 46, 3),
    Sketcher.Constraint("Horizontal", 8, 3, 48, 3),
    Sketcher.Constraint("Horizontal", 6, 3, 50, 3),
    Sketcher.Constraint("Horizontal", 5, 3, 51, 3),
    Sketcher.Constraint("Horizontal", 3, 3, 53, 3),
    Sketcher.Constraint("Horizontal", 2, 3, 54, 3),
    Sketcher.Constraint("Horizontal", 57, 3, 73, 3),
    Sketcher.Constraint("Horizontal", 71, 3, 75, 3),
    Sketcher.Constraint("Horizontal", 67, 3, 79, 3),
    Sketcher.Constraint("Horizontal", 62, 3, 84, 3),
    Sketcher.Constraint("Horizontal", 61, 3, 85, 3),
    Sketcher.Constraint("Horizontal", 59, 3, 87, 3),
    Sketcher.Constraint("Horizontal", 58, 3, 88, 3),
    Sketcher.Constraint("Horizontal", 62, 2, 83, 2),
    Sketcher.Constraint("Horizontal", 61, 1, 84, 2),
    Sketcher.Constraint("Horizontal", 58, 2, 87, 1),
    Sketcher.Constraint("Horizontal", 57, 2, 88, 2),
    Sketcher.Constraint("Vertical", 10, 3, 18, 3),
    Sketcher.Constraint("Vertical", 6, 3, 22, 3),
    Sketcher.Constraint("Vertical", 2, 3, 26, 3),
    Sketcher.Constraint("Vertical", 1, 3, 27, 3),
    Sketcher.Constraint("Vertical", 38, 3, 46, 3),
    Sketcher.Constraint("Vertical", 34, 3, 50, 3),
    Sketcher.Constraint("Vertical", 25, 3, 57, 3),
    Sketcher.Constraint("Vertical", 60, 3, 72, 3),
    Sketcher.Constraint("Vertical", 11, 2, 16, 2),
    Sketcher.Constraint("Vertical", 57, 2, 62, 2),
    Sketcher.Constraint("Equal", 16, 40),
    Sketcher.Constraint("Equal", 70, 76),
    Sketcher.Constraint("Equal", 9, 19),
    Sketcher.Constraint("Equal", 4, 24),
    Sketcher.Constraint("Equal", 56, 64),
    Sketcher.Constraint("Radius", 2, Q("1 in")),
    Sketcher.Constraint("Diameter", 72, Q("0.26 in")),
    Sketcher.Constraint("Radius", 1, Q("0.16 in")),
    Sketcher.Constraint("Radius", 6, Q("0.04 in")),
    Sketcher.Constraint("Radius", 10, Q("0.08 in")),
    Sketcher.Constraint("Radius", 57, Q("0.24 in")),
    Sketcher.Constraint("Radius", 13, Q("0.125 in")),
    Sketcher.Constraint("Radius", 59, Q("0.015 in")),
    Sketcher.Constraint("Radius", 60, Q("0.258 in")),
    Sketcher.Constraint("Radius", 67, Q("0.065 in")),
    Sketcher.Constraint("DistanceY", 14, 2, 14, 1, Q("1.25 in")),
    Sketcher.Constraint("Angle", 7, Q("-2.2 deg")),
    Sketcher.Constraint("DistanceX", 12, 2, 12, 1, Q("0.125 in")),
    Sketcher.Constraint("DistanceX", 66, 2, 66, 1, Q("0.124 in")),
    Sketcher.Constraint("Radius", 5, 1.149352),
    Sketcher.Constraint("Radius", 62, 34.583762),
    Sketcher.Constraint("DistanceX", 0, 2, 0, 1, 5.656202),
    Sketcher.Constraint("DistanceY", 4, 1, 4, 2, 1.683001),
    Sketcher.Constraint("Radius", 58, 79.135083),
    Sketcher.Constraint("DistanceY", 68, 1, 68, 2, 30.715949),
    Sketcher.Constraint("DistanceY", -1, 1, 10, 3, 144.914701),
    Sketcher.Constraint("DistanceY", -1, 1, 60, 3, 128.291499),
    Sketcher.Constraint("DistanceX", -1, 1, 57, 2, 105.7977),
    Sketcher.Constraint("Distance", 11, 6.75048),
    Sketcher.Constraint("DistanceY", 9, 1, 9, 2, 1.208293),
    Sketcher.Constraint("DistanceY", 56, 2, 56, 1, 2.959353),
    Sketcher.Constraint("DistanceX", -1, 1, 1, 3, 113.630342),
    Sketcher.Constraint("DistanceY", -1, 1, 1, 3, 139.025539),
    Sketcher.Constraint("DistanceY", -1, 1, 2, 3, 155.814939),
    Sketcher.Constraint("DistanceY", -1, 1, 6, 3, 143.77276),
    Sketcher.Constraint("DistanceY", -1, 1, 23, 3, 112.539691),
    Sketcher.Constraint("DistanceY", -1, 1, 26, 3, 100.493739),
    Sketcher.Constraint("DistanceX", -1, 1, 58, 3, 163.988921),
    Sketcher.Constraint("DistanceY", -1, 1, 61, 3, 123.70098),
    Sketcher.Constraint("DistanceY", -1, 1, 72, 3, 128.154339),
    Sketcher.Constraint("DistanceX", -1, 1, 84, 3, 100.970412),
    Sketcher.Constraint("DistanceX", -1, 1, 87, 3, 122.17675),
])
pad1 = body.newObject("PartDesign::Pad", "Pad")
pad1.Profile = sketch1
pad1.Length = Q("1 in")

doc.recompute()
